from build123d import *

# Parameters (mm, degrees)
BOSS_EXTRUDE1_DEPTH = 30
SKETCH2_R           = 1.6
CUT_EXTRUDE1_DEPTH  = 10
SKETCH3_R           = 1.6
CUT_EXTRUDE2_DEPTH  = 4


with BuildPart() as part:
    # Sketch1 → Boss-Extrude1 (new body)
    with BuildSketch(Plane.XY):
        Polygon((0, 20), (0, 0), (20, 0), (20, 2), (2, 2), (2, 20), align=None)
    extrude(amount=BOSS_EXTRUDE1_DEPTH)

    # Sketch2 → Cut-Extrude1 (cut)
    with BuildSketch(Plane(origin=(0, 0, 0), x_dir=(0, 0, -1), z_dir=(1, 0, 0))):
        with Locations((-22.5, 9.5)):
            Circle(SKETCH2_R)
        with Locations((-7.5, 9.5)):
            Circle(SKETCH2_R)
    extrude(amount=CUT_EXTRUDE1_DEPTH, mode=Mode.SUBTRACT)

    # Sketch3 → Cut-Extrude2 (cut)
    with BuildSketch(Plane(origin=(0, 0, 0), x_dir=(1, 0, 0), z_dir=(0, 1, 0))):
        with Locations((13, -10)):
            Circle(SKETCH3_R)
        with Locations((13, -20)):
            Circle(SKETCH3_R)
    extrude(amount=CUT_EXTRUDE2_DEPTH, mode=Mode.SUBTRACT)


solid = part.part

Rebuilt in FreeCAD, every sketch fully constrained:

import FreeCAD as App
import Part
import Sketcher
from FreeCAD import Vector
Q = App.Units.Quantity

doc = App.newDocument("Part")
body = doc.addObject("PartDesign::Body", "Body")

sketch1 = body.newObject("Sketcher::SketchObject", "Sketch")
sketch1.AttachmentSupport = (doc.getObject("XY_Plane"), [""])
sketch1.MapMode = "FlatFace"
sketch1.addGeometry([
    Part.LineSegment(Vector(0, 20, 0), Vector(0, 0, 0)),
    Part.LineSegment(Vector(0, 0, 0), Vector(20, 0, 0)),
    Part.LineSegment(Vector(20, 0, 0), Vector(20, 2, 0)),
    Part.LineSegment(Vector(20, 2, 0), Vector(2, 2, 0)),
    Part.LineSegment(Vector(2, 2, 0), Vector(2, 20, 0)),
    Part.LineSegment(Vector(2, 20, 0), Vector(0, 20, 0)),
], False)
sketch1.addConstraint([
    Sketcher.Constraint("Coincident", 0, 2, 1, 1),
    Sketcher.Constraint("Coincident", 1, 2, 2, 1),
    Sketcher.Constraint("Coincident", 2, 2, 3, 1),
    Sketcher.Constraint("Coincident", 3, 2, 4, 1),
    Sketcher.Constraint("Coincident", 4, 2, 5, 1),
    Sketcher.Constraint("Coincident", 5, 2, 0, 1),
    Sketcher.Constraint("Vertical", 0),
    Sketcher.Constraint("Horizontal", 1),
    Sketcher.Constraint("Vertical", 2),
    Sketcher.Constraint("Horizontal", 3),
    Sketcher.Constraint("Vertical", 4),
    Sketcher.Constraint("Horizontal", 5),
    Sketcher.Constraint("Coincident", 0, 2, -1, 1),
    Sketcher.Constraint("Equal", 1, 0),
    Sketcher.Constraint("Equal", 5, 2),
    Sketcher.Constraint("DistanceX", 1, 1, 1, 2, Q("20 mm")),
    Sketcher.Constraint("DistanceX", 3, 2, 3, 1, Q("18 mm")),
])
pad1 = body.newObject("PartDesign::Pad", "Pad")
pad1.Profile = sketch1
pad1.Length = 30

sketch2 = body.newObject("Sketcher::SketchObject", "Sketch001")
sketch2.AttachmentSupport = (doc.getObject("YZ_Plane"), [""])
sketch2.MapMode = "FlatFace"
sketch2.addGeometry([
    Part.Circle(Vector(9.5, 22.5, 0), Vector(0, 0, 1), 1.6),
    Part.Circle(Vector(9.5, 7.5, 0), Vector(0, 0, 1), 1.6),
], False)
sketch2.addConstraint([
    Sketcher.Constraint("Equal", 0, 1),
    Sketcher.Constraint("Vertical", 0, 3, 1, 3),
    Sketcher.Constraint("Diameter", 0, Q("3.2 mm")),
    Sketcher.Constraint("DistanceY", 1, 3, 0, 3, Q("15 mm")),
    Sketcher.Constraint("DistanceX", -1, 1, 0, 3, Q("9.5 mm")),
    Sketcher.Constraint("DistanceY", -1, 1, 0, 3, Q("22.5 mm")),
])
pocket1 = body.newObject("PartDesign::Pocket", "Pocket")
pocket1.Profile = sketch2
pocket1.Length = 10
pocket1.Reversed = True

sketch3 = body.newObject("Sketcher::SketchObject", "Sketch002")
sketch3.AttachmentSupport = (doc.getObject("XZ_Plane"), [""])
sketch3.MapMode = "FlatFace"
sketch3.addGeometry([
    Part.Circle(Vector(13, 10, 0), Vector(0, 0, 1), 1.6),
    Part.Circle(Vector(13, 20, 0), Vector(0, 0, 1), 1.6),
], False)
sketch3.addConstraint([
    Sketcher.Constraint("Equal", 0, 1),
    Sketcher.Constraint("Vertical", 0, 3, 1, 3),
    Sketcher.Constraint("Diameter", 0, Q("3.2 mm")),
    Sketcher.Constraint("DistanceX", -1, 1, 0, 3, Q("13 mm")),
    Sketcher.Constraint("DistanceY", -1, 1, 0, 3, Q("10 mm")),
    Sketcher.Constraint("DistanceY", -1, 1, 1, 3, Q("20 mm")),
])
pocket2 = body.newObject("PartDesign::Pocket", "Pocket001")
pocket2.Profile = sketch3
pocket2.Length = 4

doc.recompute()
